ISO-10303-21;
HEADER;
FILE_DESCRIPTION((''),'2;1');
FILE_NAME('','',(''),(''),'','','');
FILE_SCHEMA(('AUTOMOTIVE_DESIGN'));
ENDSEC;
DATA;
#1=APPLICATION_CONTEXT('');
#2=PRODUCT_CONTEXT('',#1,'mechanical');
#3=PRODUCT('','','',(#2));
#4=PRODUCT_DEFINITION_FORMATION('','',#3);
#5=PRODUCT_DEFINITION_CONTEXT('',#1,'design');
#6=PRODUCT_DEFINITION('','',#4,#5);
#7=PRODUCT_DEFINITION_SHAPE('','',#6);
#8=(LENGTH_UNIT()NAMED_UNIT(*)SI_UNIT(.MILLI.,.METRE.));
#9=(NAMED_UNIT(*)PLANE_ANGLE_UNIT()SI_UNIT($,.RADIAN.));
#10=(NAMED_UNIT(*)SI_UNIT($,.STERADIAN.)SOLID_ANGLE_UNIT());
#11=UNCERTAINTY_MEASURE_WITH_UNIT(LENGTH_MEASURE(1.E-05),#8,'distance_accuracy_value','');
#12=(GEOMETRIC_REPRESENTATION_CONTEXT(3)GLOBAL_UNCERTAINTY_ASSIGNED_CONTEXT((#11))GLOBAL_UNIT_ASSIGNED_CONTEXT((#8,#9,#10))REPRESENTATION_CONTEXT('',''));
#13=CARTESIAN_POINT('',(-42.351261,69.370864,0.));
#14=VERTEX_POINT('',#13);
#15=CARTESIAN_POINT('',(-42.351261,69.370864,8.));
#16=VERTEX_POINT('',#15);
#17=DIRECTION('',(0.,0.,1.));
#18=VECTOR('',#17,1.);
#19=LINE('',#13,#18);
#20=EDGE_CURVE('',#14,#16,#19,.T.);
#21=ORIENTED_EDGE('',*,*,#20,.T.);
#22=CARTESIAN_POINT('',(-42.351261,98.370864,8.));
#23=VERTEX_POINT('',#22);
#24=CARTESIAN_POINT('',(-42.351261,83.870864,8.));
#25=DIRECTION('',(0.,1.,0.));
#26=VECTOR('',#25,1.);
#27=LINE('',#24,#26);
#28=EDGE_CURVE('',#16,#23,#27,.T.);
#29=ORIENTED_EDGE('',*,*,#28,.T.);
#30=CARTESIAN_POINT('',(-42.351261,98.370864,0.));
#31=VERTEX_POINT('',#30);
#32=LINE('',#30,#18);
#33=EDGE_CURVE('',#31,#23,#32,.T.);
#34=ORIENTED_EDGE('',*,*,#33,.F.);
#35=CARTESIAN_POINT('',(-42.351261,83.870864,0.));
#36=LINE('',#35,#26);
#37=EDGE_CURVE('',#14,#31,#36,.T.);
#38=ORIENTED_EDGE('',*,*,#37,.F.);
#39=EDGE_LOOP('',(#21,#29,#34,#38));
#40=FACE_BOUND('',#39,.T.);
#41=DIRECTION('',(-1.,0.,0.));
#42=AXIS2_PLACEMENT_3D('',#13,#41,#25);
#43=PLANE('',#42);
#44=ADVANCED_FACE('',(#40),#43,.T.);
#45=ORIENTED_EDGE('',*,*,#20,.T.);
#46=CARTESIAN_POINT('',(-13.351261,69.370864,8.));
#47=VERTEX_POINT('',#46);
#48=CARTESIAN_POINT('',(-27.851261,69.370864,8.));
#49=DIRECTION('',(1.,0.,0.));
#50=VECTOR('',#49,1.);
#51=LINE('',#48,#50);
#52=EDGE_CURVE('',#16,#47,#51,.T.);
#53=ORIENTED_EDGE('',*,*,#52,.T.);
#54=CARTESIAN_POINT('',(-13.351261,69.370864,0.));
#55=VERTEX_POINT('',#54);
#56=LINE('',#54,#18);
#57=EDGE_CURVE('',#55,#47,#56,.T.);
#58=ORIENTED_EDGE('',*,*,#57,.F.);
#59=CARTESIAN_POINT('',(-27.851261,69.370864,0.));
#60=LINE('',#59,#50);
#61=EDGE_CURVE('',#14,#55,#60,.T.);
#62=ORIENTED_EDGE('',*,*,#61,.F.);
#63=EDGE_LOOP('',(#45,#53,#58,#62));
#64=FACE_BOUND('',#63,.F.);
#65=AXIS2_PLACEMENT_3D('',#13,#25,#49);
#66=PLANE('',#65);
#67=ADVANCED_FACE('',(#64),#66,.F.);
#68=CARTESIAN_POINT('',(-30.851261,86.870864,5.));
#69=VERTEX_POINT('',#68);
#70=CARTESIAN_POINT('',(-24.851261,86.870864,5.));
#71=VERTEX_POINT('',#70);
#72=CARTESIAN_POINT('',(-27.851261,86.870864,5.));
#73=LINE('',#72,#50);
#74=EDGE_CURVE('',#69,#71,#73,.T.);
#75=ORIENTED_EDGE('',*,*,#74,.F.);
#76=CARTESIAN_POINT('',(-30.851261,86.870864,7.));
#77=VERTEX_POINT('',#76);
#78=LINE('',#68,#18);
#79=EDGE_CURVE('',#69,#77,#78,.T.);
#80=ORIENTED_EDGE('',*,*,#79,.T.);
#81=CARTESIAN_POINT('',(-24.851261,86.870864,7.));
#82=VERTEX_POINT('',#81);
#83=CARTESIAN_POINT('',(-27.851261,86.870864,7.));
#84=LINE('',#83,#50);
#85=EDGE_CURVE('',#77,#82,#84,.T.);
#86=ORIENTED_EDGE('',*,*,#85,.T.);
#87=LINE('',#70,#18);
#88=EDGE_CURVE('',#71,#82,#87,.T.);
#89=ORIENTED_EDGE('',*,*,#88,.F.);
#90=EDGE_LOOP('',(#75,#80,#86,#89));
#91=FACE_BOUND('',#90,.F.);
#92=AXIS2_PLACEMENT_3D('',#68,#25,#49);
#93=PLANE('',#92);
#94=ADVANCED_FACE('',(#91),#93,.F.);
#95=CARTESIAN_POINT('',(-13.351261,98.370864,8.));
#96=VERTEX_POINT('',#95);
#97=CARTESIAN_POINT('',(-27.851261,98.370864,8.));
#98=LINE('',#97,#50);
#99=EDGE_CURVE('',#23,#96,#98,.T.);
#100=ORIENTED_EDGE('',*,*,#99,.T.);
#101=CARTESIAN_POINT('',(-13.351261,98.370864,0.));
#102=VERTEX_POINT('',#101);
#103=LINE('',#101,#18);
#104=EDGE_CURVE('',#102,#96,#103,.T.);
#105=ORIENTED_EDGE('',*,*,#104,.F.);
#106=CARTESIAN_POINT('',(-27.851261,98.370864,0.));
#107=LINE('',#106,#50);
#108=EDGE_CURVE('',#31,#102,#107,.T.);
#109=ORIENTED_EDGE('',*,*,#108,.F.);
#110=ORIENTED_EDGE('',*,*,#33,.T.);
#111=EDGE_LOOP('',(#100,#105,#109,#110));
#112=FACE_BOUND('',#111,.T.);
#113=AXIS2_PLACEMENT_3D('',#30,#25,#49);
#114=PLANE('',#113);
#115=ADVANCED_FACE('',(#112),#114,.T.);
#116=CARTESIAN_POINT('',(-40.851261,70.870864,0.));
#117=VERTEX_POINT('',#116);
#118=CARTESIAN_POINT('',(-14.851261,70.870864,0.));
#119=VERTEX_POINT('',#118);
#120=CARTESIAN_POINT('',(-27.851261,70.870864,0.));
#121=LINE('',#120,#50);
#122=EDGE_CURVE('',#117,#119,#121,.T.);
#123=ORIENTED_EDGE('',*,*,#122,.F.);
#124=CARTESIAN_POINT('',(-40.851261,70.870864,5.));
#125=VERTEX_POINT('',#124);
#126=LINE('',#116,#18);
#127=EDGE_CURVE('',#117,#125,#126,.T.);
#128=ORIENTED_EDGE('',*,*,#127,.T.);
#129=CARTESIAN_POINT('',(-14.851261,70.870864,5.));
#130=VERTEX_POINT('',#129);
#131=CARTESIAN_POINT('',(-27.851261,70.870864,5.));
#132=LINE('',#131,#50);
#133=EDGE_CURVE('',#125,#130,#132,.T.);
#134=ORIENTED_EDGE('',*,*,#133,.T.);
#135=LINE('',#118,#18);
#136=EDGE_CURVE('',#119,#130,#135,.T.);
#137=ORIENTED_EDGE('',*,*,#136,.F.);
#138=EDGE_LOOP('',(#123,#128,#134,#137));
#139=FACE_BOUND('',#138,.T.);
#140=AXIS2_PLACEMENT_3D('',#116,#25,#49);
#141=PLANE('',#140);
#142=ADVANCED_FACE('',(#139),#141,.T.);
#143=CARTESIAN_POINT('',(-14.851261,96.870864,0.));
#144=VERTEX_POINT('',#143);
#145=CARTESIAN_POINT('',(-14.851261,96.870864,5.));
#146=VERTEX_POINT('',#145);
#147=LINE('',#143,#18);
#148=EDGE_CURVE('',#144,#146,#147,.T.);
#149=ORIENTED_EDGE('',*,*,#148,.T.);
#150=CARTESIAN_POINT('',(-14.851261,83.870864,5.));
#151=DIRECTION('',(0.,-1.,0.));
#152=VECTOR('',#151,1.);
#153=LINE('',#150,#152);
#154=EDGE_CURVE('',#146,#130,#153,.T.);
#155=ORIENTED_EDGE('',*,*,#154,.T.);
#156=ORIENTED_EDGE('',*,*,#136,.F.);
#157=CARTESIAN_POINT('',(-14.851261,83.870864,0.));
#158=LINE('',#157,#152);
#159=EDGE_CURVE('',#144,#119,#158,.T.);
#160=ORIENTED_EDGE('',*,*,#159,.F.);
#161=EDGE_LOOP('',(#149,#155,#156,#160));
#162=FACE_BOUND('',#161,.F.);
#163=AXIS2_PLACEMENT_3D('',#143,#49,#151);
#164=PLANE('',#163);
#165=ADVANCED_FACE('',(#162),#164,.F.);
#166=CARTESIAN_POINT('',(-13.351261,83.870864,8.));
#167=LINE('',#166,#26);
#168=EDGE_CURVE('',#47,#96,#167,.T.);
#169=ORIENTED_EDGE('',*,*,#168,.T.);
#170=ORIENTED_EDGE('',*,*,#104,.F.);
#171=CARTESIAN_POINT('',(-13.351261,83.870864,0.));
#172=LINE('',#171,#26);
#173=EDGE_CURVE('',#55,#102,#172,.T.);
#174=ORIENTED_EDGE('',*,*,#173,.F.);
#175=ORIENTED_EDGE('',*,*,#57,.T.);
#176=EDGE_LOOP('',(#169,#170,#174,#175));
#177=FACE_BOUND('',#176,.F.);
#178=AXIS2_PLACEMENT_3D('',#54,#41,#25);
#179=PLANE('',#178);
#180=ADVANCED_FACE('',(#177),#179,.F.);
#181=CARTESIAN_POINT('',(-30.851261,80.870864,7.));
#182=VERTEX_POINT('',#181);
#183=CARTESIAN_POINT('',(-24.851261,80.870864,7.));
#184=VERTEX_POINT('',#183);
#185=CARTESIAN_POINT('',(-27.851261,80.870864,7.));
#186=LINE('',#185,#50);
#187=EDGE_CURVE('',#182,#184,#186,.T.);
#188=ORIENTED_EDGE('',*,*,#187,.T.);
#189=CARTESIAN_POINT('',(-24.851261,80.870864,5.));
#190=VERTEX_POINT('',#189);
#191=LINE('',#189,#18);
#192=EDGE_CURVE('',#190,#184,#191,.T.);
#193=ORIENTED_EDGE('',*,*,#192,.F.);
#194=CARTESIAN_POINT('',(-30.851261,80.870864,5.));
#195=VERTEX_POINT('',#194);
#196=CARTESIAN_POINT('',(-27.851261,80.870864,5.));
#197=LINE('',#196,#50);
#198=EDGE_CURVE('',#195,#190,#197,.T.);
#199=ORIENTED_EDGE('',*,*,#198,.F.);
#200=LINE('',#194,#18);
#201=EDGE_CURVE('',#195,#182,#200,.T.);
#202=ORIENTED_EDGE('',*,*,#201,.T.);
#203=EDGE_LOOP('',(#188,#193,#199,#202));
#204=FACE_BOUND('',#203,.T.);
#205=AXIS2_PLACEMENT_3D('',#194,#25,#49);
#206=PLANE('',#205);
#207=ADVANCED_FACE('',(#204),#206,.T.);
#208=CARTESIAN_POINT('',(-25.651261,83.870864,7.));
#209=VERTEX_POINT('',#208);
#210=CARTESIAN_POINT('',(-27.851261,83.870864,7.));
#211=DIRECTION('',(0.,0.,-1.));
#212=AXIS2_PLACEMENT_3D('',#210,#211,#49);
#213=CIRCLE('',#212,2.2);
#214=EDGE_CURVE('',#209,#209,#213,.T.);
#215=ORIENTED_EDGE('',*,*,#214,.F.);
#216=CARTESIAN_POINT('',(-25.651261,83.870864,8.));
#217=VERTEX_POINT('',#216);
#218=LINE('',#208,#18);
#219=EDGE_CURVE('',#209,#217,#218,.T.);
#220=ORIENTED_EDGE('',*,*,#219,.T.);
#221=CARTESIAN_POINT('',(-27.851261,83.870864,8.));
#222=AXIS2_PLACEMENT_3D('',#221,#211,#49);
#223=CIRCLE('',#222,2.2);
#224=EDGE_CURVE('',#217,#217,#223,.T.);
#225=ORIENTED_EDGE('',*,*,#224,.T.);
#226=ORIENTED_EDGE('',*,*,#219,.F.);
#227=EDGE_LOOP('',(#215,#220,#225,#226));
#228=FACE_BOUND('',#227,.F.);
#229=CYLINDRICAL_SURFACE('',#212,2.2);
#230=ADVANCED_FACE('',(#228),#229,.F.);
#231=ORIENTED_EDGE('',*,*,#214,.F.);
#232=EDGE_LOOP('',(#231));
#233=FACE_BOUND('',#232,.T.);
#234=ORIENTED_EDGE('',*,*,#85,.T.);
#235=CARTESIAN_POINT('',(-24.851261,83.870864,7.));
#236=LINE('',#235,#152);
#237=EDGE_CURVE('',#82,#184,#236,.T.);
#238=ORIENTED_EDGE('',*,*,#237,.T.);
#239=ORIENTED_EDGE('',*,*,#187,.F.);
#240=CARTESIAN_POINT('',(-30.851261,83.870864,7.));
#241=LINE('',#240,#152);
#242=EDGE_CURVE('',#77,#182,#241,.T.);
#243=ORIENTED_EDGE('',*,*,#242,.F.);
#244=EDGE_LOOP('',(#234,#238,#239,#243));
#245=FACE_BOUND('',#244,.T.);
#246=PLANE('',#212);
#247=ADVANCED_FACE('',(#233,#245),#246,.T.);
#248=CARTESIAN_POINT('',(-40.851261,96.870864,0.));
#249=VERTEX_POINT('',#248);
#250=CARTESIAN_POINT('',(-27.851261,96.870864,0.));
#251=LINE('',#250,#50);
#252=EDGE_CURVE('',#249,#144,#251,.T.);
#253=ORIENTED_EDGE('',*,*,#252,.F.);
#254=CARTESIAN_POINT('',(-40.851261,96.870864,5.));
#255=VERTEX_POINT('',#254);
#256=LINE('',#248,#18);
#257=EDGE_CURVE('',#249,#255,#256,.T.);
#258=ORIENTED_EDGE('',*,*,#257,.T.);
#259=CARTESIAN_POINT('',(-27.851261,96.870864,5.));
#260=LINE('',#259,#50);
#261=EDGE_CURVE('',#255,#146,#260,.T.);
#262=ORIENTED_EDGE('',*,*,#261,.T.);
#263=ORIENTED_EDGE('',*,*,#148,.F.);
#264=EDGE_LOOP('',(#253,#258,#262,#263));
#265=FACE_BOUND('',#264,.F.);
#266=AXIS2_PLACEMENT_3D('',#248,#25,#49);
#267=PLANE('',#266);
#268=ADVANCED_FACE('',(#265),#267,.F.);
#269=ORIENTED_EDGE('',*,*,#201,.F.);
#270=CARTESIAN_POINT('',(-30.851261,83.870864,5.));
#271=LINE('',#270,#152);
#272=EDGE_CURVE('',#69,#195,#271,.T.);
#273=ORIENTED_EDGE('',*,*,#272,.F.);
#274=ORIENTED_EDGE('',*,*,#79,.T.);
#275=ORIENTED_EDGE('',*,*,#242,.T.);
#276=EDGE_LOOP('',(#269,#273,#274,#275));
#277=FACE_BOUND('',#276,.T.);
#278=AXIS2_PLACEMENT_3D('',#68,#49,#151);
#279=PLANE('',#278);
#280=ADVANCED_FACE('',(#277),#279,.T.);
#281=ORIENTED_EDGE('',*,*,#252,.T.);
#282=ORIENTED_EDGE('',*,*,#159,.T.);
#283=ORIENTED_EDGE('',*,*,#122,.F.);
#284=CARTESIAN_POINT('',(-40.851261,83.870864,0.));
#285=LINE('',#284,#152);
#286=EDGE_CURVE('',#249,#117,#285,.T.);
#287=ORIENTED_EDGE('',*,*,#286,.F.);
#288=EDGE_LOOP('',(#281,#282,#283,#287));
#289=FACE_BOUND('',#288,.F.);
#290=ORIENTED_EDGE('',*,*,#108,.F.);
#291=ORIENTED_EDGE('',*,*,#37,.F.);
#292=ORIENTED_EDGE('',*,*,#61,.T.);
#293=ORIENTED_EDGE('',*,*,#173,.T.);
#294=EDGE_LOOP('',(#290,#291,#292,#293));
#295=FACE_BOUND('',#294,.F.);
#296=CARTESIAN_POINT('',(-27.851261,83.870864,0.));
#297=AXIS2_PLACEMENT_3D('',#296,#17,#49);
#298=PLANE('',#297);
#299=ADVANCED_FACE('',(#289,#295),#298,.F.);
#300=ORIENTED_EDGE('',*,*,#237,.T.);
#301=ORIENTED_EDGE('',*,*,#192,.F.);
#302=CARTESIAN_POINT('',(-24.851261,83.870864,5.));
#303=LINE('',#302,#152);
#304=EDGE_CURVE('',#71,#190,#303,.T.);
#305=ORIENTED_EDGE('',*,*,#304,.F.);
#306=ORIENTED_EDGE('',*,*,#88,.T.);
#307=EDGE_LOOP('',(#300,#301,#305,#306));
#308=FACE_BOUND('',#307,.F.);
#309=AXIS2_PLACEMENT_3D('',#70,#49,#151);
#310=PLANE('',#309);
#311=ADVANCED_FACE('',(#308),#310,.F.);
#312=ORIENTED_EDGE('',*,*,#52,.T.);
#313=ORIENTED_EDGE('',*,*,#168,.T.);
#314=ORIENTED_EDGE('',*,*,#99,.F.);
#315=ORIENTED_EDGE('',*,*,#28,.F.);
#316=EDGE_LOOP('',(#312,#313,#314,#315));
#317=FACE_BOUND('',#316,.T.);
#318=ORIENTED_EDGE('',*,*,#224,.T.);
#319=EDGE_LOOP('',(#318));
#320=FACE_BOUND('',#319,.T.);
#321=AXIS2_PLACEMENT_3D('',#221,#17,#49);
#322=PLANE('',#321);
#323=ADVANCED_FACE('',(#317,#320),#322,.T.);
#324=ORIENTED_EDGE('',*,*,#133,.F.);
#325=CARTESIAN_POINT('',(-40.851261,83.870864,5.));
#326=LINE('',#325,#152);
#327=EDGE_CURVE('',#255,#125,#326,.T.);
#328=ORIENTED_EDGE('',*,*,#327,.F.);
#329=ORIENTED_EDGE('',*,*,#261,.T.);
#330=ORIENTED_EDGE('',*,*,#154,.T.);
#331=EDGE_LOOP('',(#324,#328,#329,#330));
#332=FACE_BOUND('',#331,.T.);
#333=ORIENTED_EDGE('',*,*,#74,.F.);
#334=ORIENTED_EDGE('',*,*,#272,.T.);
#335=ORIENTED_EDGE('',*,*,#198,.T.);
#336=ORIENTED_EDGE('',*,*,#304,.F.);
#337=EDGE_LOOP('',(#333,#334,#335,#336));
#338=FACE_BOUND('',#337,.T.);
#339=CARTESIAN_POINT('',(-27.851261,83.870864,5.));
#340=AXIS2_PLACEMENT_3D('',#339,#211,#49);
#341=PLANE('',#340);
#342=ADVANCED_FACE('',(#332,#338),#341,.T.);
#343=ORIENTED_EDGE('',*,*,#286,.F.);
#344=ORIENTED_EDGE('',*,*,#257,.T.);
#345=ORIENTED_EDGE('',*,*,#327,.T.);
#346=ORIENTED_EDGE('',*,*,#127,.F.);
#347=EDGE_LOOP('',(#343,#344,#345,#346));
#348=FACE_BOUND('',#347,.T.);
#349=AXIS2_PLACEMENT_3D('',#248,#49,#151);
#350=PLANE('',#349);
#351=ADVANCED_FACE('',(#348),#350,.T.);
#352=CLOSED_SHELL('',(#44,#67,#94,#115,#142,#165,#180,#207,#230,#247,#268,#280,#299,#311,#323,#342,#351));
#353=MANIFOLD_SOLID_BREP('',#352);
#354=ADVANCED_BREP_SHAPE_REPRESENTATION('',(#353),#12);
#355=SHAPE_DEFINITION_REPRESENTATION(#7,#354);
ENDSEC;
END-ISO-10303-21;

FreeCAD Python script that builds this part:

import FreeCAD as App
import Part
import Sketcher
Q = App.Units.Quantity

doc = App.newDocument("Part")
body = doc.addObject("PartDesign::Body", "Body")

sketch1 = body.newObject("Sketcher::SketchObject", "Sketch")
sketch1.AttachmentSupport = (doc.getObject("XY_Plane"), [""])
sketch1.MapMode = "FlatFace"
sketch1.addGeometry(Part.LineSegment(App.Vector(-42.351261, 98.370864, 0), App.Vector(-42.351261, 69.370864, 0)), False)
sketch1.addGeometry(Part.LineSegment(App.Vector(-42.351261, 69.370864, 0), App.Vector(-13.351261, 69.370864, 0)), False)
sketch1.addGeometry(Part.LineSegment(App.Vector(-13.351261, 69.370864, 0), App.Vector(-13.351261, 98.370864, 0)), False)
sketch1.addGeometry(Part.LineSegment(App.Vector(-13.351261, 98.370864, 0), App.Vector(-42.351261, 98.370864, 0)), False)
sketch1.addConstraint(Sketcher.Constraint("Coincident", 0, 2, 1, 1))
sketch1.addConstraint(Sketcher.Constraint("Coincident", 1, 2, 2, 1))
sketch1.addConstraint(Sketcher.Constraint("Coincident", 2, 2, 3, 1))
sketch1.addConstraint(Sketcher.Constraint("Coincident", 3, 2, 0, 1))
sketch1.addConstraint(Sketcher.Constraint("Vertical", 0))
sketch1.addConstraint(Sketcher.Constraint("Horizontal", 1))
sketch1.addConstraint(Sketcher.Constraint("Vertical", 2))
sketch1.addConstraint(Sketcher.Constraint("Horizontal", 3))
sketch1.addConstraint(Sketcher.Constraint("Equal", 3, 0))
sketch1.addConstraint(Sketcher.Constraint("DistanceX", 1, 1, 1, 2, Q("29 mm")))
sketch1.addConstraint(Sketcher.Constraint("DistanceX", 0, 2, -1, 1, Q("42.351261 mm")))
sketch1.addConstraint(Sketcher.Constraint("DistanceY", -1, 1, 0, 2, Q("69.370864 mm")))
pad1 = body.newObject("PartDesign::Pad", "Pad")
pad1.Profile = sketch1
pad1.Length = 8

sketch2 = body.newObject("Sketcher::SketchObject", "Sketch001")
sketch2.AttachmentSupport = (doc.getObject("XY_Plane"), [""])
sketch2.MapMode = "FlatFace"
sketch2.addGeometry(Part.LineSegment(App.Vector(-40.851261, 70.870864, 0), App.Vector(-40.851261, 96.870864, 0)), False)
sketch2.addGeometry(Part.LineSegment(App.Vector(-40.851261, 96.870864, 0), App.Vector(-14.851261, 96.870864, 0)), False)
sketch2.addGeometry(Part.LineSegment(App.Vector(-14.851261, 96.870864, 0), App.Vector(-14.851261, 70.870864, 0)), False)
sketch2.addGeometry(Part.LineSegment(App.Vector(-14.851261, 70.870864, 0), App.Vector(-40.851261, 70.870864, 0)), False)
sketch2.addConstraint(Sketcher.Constraint("Coincident", 0, 2, 1, 1))
sketch2.addConstraint(Sketcher.Constraint("Coincident", 1, 2, 2, 1))
sketch2.addConstraint(Sketcher.Constraint("Coincident", 2, 2, 3, 1))
sketch2.addConstraint(Sketcher.Constraint("Coincident", 3, 2, 0, 1))
sketch2.addConstraint(Sketcher.Constraint("Vertical", 0))
sketch2.addConstraint(Sketcher.Constraint("Horizontal", 1))
sketch2.addConstraint(Sketcher.Constraint("Vertical", 2))
sketch2.addConstraint(Sketcher.Constraint("Horizontal", 3))
sketch2.addConstraint(Sketcher.Constraint("Equal", 3, 0))
sketch2.addConstraint(Sketcher.Constraint("DistanceX", 1, 1, 1, 2, Q("26 mm")))
sketch2.addConstraint(Sketcher.Constraint("DistanceX", 0, 2, -1, 1, Q("40.851261 mm")))
sketch2.addConstraint(Sketcher.Constraint("DistanceY", -1, 1, 0, 2, Q("96.870864 mm")))
pocket1 = body.newObject("PartDesign::Pocket", "Pocket")
pocket1.Profile = sketch2
pocket1.Length = 5
pocket1.Reversed = True

sketch3 = body.newObject("Sketcher::SketchObject", "Sketch002")
sketch3.AttachmentSupport = (doc.getObject("XY_Plane"), [""])
sketch3.MapMode = "FlatFace"
sketch3.AttachmentOffset = App.Placement(App.Vector(0, 0, 5), App.Rotation())
sketch3.addGeometry(Part.LineSegment(App.Vector(-30.851261, 80.870864, 0), App.Vector(-30.851261, 86.870864, 0)), False)
sketch3.addGeometry(Part.LineSegment(App.Vector(-30.851261, 86.870864, 0), App.Vector(-24.851261, 86.870864, 0)), False)
sketch3.addGeometry(Part.LineSegment(App.Vector(-24.851261, 86.870864, 0), App.Vector(-24.851261, 80.870864, 0)), False)
sketch3.addGeometry(Part.LineSegment(App.Vector(-24.851261, 80.870864, 0), App.Vector(-30.851261, 80.870864, 0)), False)
sketch3.addConstraint(Sketcher.Constraint("Coincident", 0, 2, 1, 1))
sketch3.addConstraint(Sketcher.Constraint("Coincident", 1, 2, 2, 1))
sketch3.addConstraint(Sketcher.Constraint("Coincident", 2, 2, 3, 1))
sketch3.addConstraint(Sketcher.Constraint("Coincident", 3, 2, 0, 1))
sketch3.addConstraint(Sketcher.Constraint("Vertical", 0))
sketch3.addConstraint(Sketcher.Constraint("Horizontal", 1))
sketch3.addConstraint(Sketcher.Constraint("Vertical", 2))
sketch3.addConstraint(Sketcher.Constraint("Horizontal", 3))
sketch3.addConstraint(Sketcher.Constraint("Equal", 3, 0))
sketch3.addConstraint(Sketcher.Constraint("DistanceX", 1, 1, 1, 2, Q("6 mm")))
sketch3.addConstraint(Sketcher.Constraint("DistanceX", 0, 2, -1, 1, Q("30.851261 mm")))
sketch3.addConstraint(Sketcher.Constraint("DistanceY", -1, 1, 0, 2, Q("86.870864 mm")))
pocket2 = body.newObject("PartDesign::Pocket", "Pocket001")
pocket2.Profile = sketch3
pocket2.Length = 2
pocket2.Reversed = True

sketch4 = body.newObject("Sketcher::SketchObject", "Sketch003")
sketch4.AttachmentSupport = (doc.getObject("XY_Plane"), [""])
sketch4.MapMode = "FlatFace"
sketch4.AttachmentOffset = App.Placement(App.Vector(0, 0, 7), App.Rotation())
sketch4.addGeometry(Part.Circle(App.Vector(-27.851261, 83.870864, 0), App.Vector(0, 0, 1), 2.2), False)
sketch4.addConstraint(Sketcher.Constraint("Diameter", 0, Q("4.4 mm")))
sketch4.addConstraint(Sketcher.Constraint("DistanceX", 0, 3, -1, 1, Q("27.851261 mm")))
sketch4.addConstraint(Sketcher.Constraint("DistanceY", -1, 1, 0, 3, Q("83.870864 mm")))
pocket3 = body.newObject("PartDesign::Pocket", "Pocket002")
pocket3.Profile = sketch4
pocket3.Length = 5
pocket3.Reversed = True

doc.recompute()
